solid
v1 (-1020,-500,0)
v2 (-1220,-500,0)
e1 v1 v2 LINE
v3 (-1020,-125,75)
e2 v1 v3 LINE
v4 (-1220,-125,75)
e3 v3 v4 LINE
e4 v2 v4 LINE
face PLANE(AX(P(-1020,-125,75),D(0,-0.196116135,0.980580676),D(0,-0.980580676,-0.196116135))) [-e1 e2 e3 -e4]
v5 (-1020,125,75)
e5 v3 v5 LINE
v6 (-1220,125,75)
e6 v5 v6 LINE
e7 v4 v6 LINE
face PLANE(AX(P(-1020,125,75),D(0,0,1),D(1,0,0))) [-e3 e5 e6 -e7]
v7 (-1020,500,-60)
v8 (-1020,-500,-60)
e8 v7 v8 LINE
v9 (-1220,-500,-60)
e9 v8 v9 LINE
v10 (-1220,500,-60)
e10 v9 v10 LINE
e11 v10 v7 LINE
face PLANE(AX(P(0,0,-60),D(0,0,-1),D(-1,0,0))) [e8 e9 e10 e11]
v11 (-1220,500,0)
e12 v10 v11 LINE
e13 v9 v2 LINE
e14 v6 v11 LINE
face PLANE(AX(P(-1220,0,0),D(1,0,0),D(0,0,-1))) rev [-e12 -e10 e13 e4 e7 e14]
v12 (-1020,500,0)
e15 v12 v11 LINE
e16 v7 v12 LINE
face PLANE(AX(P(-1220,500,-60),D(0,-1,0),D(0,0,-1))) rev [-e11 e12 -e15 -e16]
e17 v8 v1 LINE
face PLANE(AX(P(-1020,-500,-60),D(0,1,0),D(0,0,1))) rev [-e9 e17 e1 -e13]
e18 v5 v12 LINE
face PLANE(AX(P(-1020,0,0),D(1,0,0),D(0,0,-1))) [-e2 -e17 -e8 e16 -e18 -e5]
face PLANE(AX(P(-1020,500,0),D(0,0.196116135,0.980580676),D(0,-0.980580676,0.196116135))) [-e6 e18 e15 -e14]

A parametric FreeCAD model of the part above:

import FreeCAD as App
import Part
import Sketcher
from FreeCAD import Vector


def add_polygon(sketch, points):
    """Adds a closed chain of lines whose ends are joined by coincident constraints."""
    first, n = sketch.GeometryCount, len(points)
    for a, b in zip(points, points[1:] + points[:1]):
        sketch.addGeometry(Part.LineSegment(App.Vector(*a, 0), App.Vector(*b, 0)), False)
    for i in range(n):
        sketch.addConstraint(Sketcher.Constraint("Coincident", first + i, 2, first + (i + 1) % n, 1))

doc = App.newDocument("Part")
body = doc.addObject("PartDesign::Body", "Body")

# Sketch on YZ plane
sketch1 = body.newObject("Sketcher::SketchObject", "Sketch")
sketch1.AttachmentSupport = (doc.getObject("YZ_Plane"), [""])
sketch1.MapMode = "FlatFace"
sketch1.AttachmentOffset = App.Placement(Vector(0, 0, -1220), App.Rotation())
add_polygon(sketch1, [(125, 75), (500, 0), (-500, 0), (-125, 75)])  # lines 0-3
sketch1.addConstraint([
    Sketcher.Constraint("Horizontal", 1),
    Sketcher.Constraint("Horizontal", 3),
    Sketcher.Constraint("Symmetric", 0, 2, 1, 2, -1, 1),
    Sketcher.Constraint("Equal", 0, 2),
    Sketcher.Constraint("DistanceX", 1, 2, 1, 1, 1000.0),
    Sketcher.Constraint("DistanceX", 3, 1, 3, 2, 250.0),
    Sketcher.Constraint("DistanceY", -1, 1, 2, 2, 75.0),
])
pad1 = body.newObject("PartDesign::Pad", "Pad")
pad1.Profile = sketch1
pad1.Length = 200

# Sketch on XY plane
sketch2 = body.newObject("Sketcher::SketchObject", "Sketch001")
sketch2.AttachmentSupport = (doc.getObject("XY_Plane"), [""])
sketch2.MapMode = "FlatFace"
add_polygon(sketch2, [(-1020, 500), (-1020, -500), (-1220, -500), (-1220, 500)])  # lines 0-3
sketch2.addConstraint([
    Sketcher.Constraint("Vertical", 0),
    Sketcher.Constraint("Horizontal", 1),
    Sketcher.Constraint("Vertical", 2),
    Sketcher.Constraint("Horizontal", 3),
    Sketcher.Constraint("DistanceX", 1, 2, 1, 1, 200.0),
    Sketcher.Constraint("DistanceY", 0, 2, 0, 1, 1000.0),
    Sketcher.Constraint("DistanceX", 0, 2, -1, 1, 1020.0),
    Sketcher.Constraint("DistanceY", 0, 2, -1, 1, 500.0),
])
pad2 = body.newObject("PartDesign::Pad", "Pad001")
pad2.Profile = sketch2
pad2.Length = 60
pad2.Reversed = True

doc.recompute()
